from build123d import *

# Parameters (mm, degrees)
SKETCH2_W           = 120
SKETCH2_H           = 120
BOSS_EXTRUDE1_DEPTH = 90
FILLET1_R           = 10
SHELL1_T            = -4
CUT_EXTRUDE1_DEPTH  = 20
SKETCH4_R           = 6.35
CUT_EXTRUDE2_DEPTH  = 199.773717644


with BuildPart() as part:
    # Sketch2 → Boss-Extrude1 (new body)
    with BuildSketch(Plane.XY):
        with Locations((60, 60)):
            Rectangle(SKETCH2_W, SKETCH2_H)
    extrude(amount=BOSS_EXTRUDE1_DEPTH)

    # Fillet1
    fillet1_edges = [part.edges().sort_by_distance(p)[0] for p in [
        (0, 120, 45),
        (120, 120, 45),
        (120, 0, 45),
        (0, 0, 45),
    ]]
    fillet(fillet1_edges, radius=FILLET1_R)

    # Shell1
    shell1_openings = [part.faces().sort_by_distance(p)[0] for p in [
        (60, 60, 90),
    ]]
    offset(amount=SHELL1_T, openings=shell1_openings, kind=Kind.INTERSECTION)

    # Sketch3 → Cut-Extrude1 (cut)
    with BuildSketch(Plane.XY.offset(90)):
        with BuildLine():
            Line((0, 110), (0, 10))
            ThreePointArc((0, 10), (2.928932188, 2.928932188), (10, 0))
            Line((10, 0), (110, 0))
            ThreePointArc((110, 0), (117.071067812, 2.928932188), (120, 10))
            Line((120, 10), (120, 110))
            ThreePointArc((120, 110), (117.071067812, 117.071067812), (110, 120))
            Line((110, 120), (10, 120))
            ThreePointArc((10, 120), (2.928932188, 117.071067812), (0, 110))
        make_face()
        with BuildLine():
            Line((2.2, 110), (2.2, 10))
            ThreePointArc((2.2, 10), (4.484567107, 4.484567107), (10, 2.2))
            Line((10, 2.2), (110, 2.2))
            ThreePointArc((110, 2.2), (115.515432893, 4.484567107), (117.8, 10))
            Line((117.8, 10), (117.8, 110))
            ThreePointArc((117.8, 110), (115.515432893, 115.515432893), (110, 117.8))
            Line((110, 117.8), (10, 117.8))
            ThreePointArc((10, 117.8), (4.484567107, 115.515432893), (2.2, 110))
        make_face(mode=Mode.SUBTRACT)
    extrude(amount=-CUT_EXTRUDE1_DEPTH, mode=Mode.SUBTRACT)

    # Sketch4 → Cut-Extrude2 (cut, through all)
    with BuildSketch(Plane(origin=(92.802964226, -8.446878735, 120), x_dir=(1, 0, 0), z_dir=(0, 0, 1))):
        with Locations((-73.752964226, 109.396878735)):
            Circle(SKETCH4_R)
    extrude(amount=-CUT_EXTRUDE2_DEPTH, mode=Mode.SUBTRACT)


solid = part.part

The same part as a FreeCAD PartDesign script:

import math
import FreeCAD as App
import Part
import Sketcher
Q = App.Units.Quantity


def edges_at(feature, points):
    """Names of the edges that pass closest to the given points."""
    edges = feature.Shape.Edges
    near = lambda p: min(range(len(edges)), key=lambda i: edges[i].distToShape(Part.Vertex(*p))[0])
    return sorted({f"Edge{near(p) + 1}" for p in points})


def faces_at(feature, points):
    """Names of the faces that lie closest to the given points."""
    faces = feature.Shape.Faces
    near = lambda p: min(range(len(faces)), key=lambda i: faces[i].distToShape(Part.Vertex(*p))[0])
    return sorted({f"Face{near(p) + 1}" for p in points})


def add_polygon(sketch, points):
    """Adds a closed chain of lines whose ends are joined by coincident constraints."""
    first, n = sketch.GeometryCount, len(points)
    for a, b in zip(points, points[1:] + points[:1]):
        sketch.addGeometry(Part.LineSegment(App.Vector(*a, 0), App.Vector(*b, 0)), False)
    for i in range(n):
        sketch.addConstraint(Sketcher.Constraint("Coincident", first + i, 2, first + (i + 1) % n, 1))

doc = App.newDocument("Part")
body = doc.addObject("PartDesign::Body", "Body")

# Sketch on XY plane
sketch1 = doc.addObject("Sketcher::SketchObject", "Sketch")
body.addObject(sketch1)
sketch1.AttachmentSupport = (doc.XY_Plane, [""])
sketch1.MapMode = "FlatFace"
add_polygon(sketch1, [(0, 120), (0, 0), (120, 0), (120, 120)])  # lines 0-3
sketch1.addConstraint([
    Sketcher.Constraint("Vertical", 0),
    Sketcher.Constraint("Horizontal", 1),
    Sketcher.Constraint("Vertical", 2),
    Sketcher.Constraint("Horizontal", 3),
    Sketcher.Constraint("Coincident", 0, 2, -1, 1),
    Sketcher.Constraint("Equal", 3, 0),
    Sketcher.Constraint("DistanceX", 1, 1, 1, 2, Q("120 mm")),
])
pad1 = doc.addObject("PartDesign::Pad", "Pad")
body.addObject(pad1)
pad1.Profile = sketch1
pad1.Length = 90
doc.recompute()

fillet = doc.addObject("PartDesign::Fillet", "Fillet")
body.addObject(fillet)
fillet.Base = (pad1, edges_at(pad1, [
    (0, 120, 45),
    (120, 120, 45),
    (120, 0, 45),
    (0, 0, 45),
]))
fillet.Radius = 10
doc.recompute()

thickness = doc.addObject("PartDesign::Thickness", "Thickness")
body.addObject(thickness)
thickness.Base = (fillet, faces_at(fillet, [(60, 60, 90)]))
thickness.Value = 4
thickness.Reversed = True
thickness.Join = "Intersection"

# Sketch on XY plane
sketch2 = doc.addObject("Sketcher::SketchObject", "Sketch001")
body.addObject(sketch2)
sketch2.AttachmentSupport = (doc.XY_Plane, [""])
sketch2.MapMode = "FlatFace"
sketch2.AttachmentOffset = App.Placement(App.Vector(0, 0, 90), App.Rotation())
sketch2.addGeometry([
    Part.LineSegment(App.Vector(0, 110, 0), App.Vector(0, 10, 0)),  # 0
    Part.ArcOfCircle(Part.Circle(App.Vector(10, 10, 0), App.Vector(0, 0, 1), 10), math.radians(180), math.radians(270)),  # 1
    Part.LineSegment(App.Vector(10, 0, 0), App.Vector(110, 0, 0)),  # 2
    Part.ArcOfCircle(Part.Circle(App.Vector(110, 10, 0), App.Vector(0, 0, 1), 10), math.radians(-90), math.radians(0)),  # 3
    Part.LineSegment(App.Vector(120, 10, 0), App.Vector(120, 110, 0)),  # 4
    Part.ArcOfCircle(Part.Circle(App.Vector(110, 110, 0), App.Vector(0, 0, 1), 10), math.radians(0), math.radians(90)),  # 5
    Part.LineSegment(App.Vector(110, 120, 0), App.Vector(10, 120, 0)),  # 6
    Part.ArcOfCircle(Part.Circle(App.Vector(10, 110, 0), App.Vector(0, 0, 1), 10), math.radians(90), math.radians(180)),  # 7
    Part.LineSegment(App.Vector(2.2, 10, 0), App.Vector(2.2, 110, 0)),  # 8
    Part.ArcOfCircle(Part.Circle(App.Vector(10, 110, 0), App.Vector(0, 0, 1), 7.8), math.radians(90), math.radians(180)),  # 9
    Part.LineSegment(App.Vector(10, 117.8, 0), App.Vector(110, 117.8, 0)),  # 10
    Part.ArcOfCircle(Part.Circle(App.Vector(110, 110, 0), App.Vector(0, 0, 1), 7.8), math.radians(0), math.radians(90)),  # 11
    Part.LineSegment(App.Vector(117.8, 110, 0), App.Vector(117.8, 10, 0)),  # 12
    Part.ArcOfCircle(Part.Circle(App.Vector(110, 10, 0), App.Vector(0, 0, 1), 7.8), math.radians(-90), math.radians(0)),  # 13
    Part.LineSegment(App.Vector(110, 2.2, 0), App.Vector(10, 2.2, 0)),  # 14
    Part.ArcOfCircle(Part.Circle(App.Vector(10, 10, 0), App.Vector(0, 0, 1), 7.8), math.radians(-180), math.radians(-90)),  # 15
], False)
sketch2.addConstraint([
    Sketcher.Constraint("Tangent", 0, 2, 1, 1),
    Sketcher.Constraint("Tangent", 1, 2, 2, 1),
    Sketcher.Constraint("Tangent", 2, 2, 3, 1),
    Sketcher.Constraint("Tangent", 3, 2, 4, 1),
    Sketcher.Constraint("Tangent", 4, 2, 5, 1),
    Sketcher.Constraint("Tangent", 5, 2, 6, 1),
    Sketcher.Constraint("Tangent", 6, 2, 7, 1),
    Sketcher.Constraint("Tangent", 7, 2, 0, 1),
    Sketcher.Constraint("Tangent", 8, 2, 9, 2),
    Sketcher.Constraint("Tangent", 9, 1, 10, 1),
    Sketcher.Constraint("Tangent", 10, 2, 11, 2),
    Sketcher.Constraint("Tangent", 11, 1, 12, 1),
    Sketcher.Constraint("Tangent", 12, 2, 13, 2),
    Sketcher.Constraint("Tangent", 13, 1, 14, 1),
    Sketcher.Constraint("Tangent", 14, 2, 15, 2),
    Sketcher.Constraint("Tangent", 15, 1, 8, 1),
    Sketcher.Constraint("Vertical", 0),
    Sketcher.Constraint("Horizontal", 2),
    Sketcher.Constraint("Vertical", 4),
    Sketcher.Constraint("Horizontal", 6),
    Sketcher.Constraint("Vertical", 8),
    Sketcher.Constraint("Horizontal", 10),
    Sketcher.Constraint("Vertical", 12),
    Sketcher.Constraint("Horizontal", 14),
    Sketcher.Constraint("Coincident", 9, 3, 7, 3),
    Sketcher.Constraint("Coincident", 11, 3, 5, 3),
    Sketcher.Constraint("Coincident", 13, 3, 3, 3),
    Sketcher.Constraint("Equal", 1, 3),
    Sketcher.Constraint("Equal", 3, 5),
    Sketcher.Constraint("Equal", 5, 7),
    Sketcher.Constraint("Equal", 13, 15),
    Sketcher.Constraint("PointOnObject", 0, 2, -2),
    Sketcher.Constraint("PointOnObject", 1, 2, -1),
    Sketcher.Constraint("Equal", 14, 0),
    Sketcher.Constraint("Radius", 1, Q("10 mm")),
    Sketcher.Constraint("Radius", 9, Q("7.8 mm")),
    Sketcher.Constraint("DistanceX", 2, 1, 2, 2, Q("100 mm")),
])
pocket1 = doc.addObject("PartDesign::Pocket", "Pocket")
body.addObject(pocket1)
pocket1.Profile = sketch2
pocket1.Length = 20

# Sketch on XY plane
sketch3 = doc.addObject("Sketcher::SketchObject", "Sketch002")
body.addObject(sketch3)
sketch3.AttachmentSupport = (doc.XY_Plane, [""])
sketch3.MapMode = "FlatFace"
sketch3.AttachmentOffset = App.Placement(App.Vector(0, 0, 120), App.Rotation())
sketch3.addGeometry(Part.Circle(App.Vector(19.05, 100.95, 0), App.Vector(0, 0, 1), 6.35), False)
sketch3.addConstraint([
    Sketcher.Constraint("Diameter", 0, Q("12.7 mm")),
    Sketcher.Constraint("DistanceX", -1, 1, 0, 3, Q("19.05 mm")),
    Sketcher.Constraint("DistanceY", -1, 1, 0, 3, Q("100.95 mm")),
])
pocket2 = doc.addObject("PartDesign::Pocket", "Pocket001")
body.addObject(pocket2)
pocket2.Profile = sketch3
pocket2.Type = "ThroughAll"

doc.recompute()
